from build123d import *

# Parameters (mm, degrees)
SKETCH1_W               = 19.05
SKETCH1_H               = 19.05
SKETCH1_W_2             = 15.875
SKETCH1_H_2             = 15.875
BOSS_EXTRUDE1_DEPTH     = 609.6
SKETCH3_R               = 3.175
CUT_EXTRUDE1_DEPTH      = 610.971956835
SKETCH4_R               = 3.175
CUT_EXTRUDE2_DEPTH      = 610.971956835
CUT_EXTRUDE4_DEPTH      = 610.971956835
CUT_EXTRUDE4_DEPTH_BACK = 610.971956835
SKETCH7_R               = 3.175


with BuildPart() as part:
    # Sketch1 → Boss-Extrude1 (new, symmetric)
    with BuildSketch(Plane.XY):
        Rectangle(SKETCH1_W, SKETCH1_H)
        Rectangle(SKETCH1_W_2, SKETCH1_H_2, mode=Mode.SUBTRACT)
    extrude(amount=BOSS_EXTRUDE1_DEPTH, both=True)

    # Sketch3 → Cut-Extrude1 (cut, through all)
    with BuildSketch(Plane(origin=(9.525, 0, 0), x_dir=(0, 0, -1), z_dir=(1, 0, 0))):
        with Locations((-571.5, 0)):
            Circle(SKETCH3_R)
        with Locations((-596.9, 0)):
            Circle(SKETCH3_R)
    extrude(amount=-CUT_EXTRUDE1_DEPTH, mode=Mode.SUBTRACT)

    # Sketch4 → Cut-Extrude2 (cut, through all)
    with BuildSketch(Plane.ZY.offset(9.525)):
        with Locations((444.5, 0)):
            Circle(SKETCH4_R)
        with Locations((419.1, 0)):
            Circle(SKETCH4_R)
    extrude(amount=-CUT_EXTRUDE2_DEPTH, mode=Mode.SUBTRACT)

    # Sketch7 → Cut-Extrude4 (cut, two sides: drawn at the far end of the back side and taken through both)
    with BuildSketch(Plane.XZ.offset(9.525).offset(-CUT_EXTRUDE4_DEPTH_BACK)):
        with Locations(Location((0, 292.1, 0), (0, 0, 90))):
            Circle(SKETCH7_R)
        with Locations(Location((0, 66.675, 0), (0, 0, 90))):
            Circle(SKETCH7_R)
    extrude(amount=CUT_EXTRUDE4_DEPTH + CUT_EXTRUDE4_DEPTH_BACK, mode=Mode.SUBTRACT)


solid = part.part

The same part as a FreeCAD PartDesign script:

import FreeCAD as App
import Part
import Sketcher
from FreeCAD import Vector
Q = App.Units.Quantity


def add_polygon(sketch, points):
    """Adds a closed chain of lines whose ends are joined by coincident constraints."""
    first, n = sketch.GeometryCount, len(points)
    for a, b in zip(points, points[1:] + points[:1]):
        sketch.addGeometry(Part.LineSegment(App.Vector(*a, 0), App.Vector(*b, 0)), False)
    for i in range(n):
        sketch.addConstraint(Sketcher.Constraint("Coincident", first + i, 2, first + (i + 1) % n, 1))

doc = App.newDocument("Part")
params = doc.addObject("Spreadsheet::Sheet", "Params")
for row, (alias, value) in enumerate([
    ("sketch1_width", "0.75 in"),
    ("sketch1_width2", "0.625 in"),
    ("pad1_length", "48 in"),
    ("sketch2_diameter", "0.25 in"),
    ("sketch3_diameter", "0.25 in"),
    ("sketch4_diameter", "0.25 in"),
], start=1):
    params.set(f"A{row}", alias)
    params.set(f"B{row}", "=" + value)
    params.setAlias(f"B{row}", alias)

body = doc.addObject("PartDesign::Body", "Body")

# Sketch on XY plane
sketch1 = body.newObject("Sketcher::SketchObject", "Sketch")
sketch1.AttachmentSupport = (doc.getObject("XY_Plane"), [""])
sketch1.MapMode = "FlatFace"
add_polygon(sketch1, [(-10, 10), (-10, -10), (10, -10), (10, 10)])  # lines 0-3
add_polygon(sketch1, [(8, -8), (-8, -8), (-8, 8), (8, 8)])  # lines 4-7
sketch1.addConstraint(Sketcher.Constraint("Vertical", 0))
sketch1.addConstraint(Sketcher.Constraint("Horizontal", 1))
sketch1.addConstraint(Sketcher.Constraint("Vertical", 2))
sketch1.addConstraint(Sketcher.Constraint("Horizontal", 3))
sketch1.addConstraint(Sketcher.Constraint("Horizontal", 4))
sketch1.addConstraint(Sketcher.Constraint("Vertical", 5))
sketch1.addConstraint(Sketcher.Constraint("Horizontal", 6))
sketch1.addConstraint(Sketcher.Constraint("Vertical", 7))
sketch1.addConstraint(Sketcher.Constraint("Symmetric", 0, 2, 2, 2, -1, 1))
sketch1.addConstraint(Sketcher.Constraint("Symmetric", 4, 2, 6, 2, -1, 1))
sketch1.addConstraint(Sketcher.Constraint("Equal", 3, 0))
sketch1.addConstraint(Sketcher.Constraint("Equal", 6, 5))
sketch1.addConstraint(Sketcher.Constraint("DistanceX", 1, 1, 1, 2, Q("0.75 in")))
sketch1.addConstraint(Sketcher.Constraint("DistanceX", 4, 2, 4, 1, Q("0.625 in")))
sketch1.setExpression("Constraints[20]", "Params.sketch1_width")
sketch1.setExpression("Constraints[21]", "Params.sketch1_width2")
pad1 = body.newObject("PartDesign::Pad", "Pad")
pad1.Profile = sketch1
pad1.setExpression("Length", "Params.pad1_length")
pad1.Midplane = True

# Sketch on YZ plane
sketch2 = body.newObject("Sketcher::SketchObject", "Sketch001")
sketch2.AttachmentSupport = (doc.getObject("YZ_Plane"), [""])
sketch2.MapMode = "FlatFace"
sketch2.AttachmentOffset = App.Placement(Vector(0, 0, 0.375 * 25.4), App.Rotation())
sketch2.addGeometry(Part.Circle(Vector(0, 571.5, 0), Vector(0, 0, 1), 3.2), False)
sketch2.addGeometry(Part.Circle(Vector(0, 596.9, 0), Vector(0, 0, 1), 3.2), False)
sketch2.addConstraint(Sketcher.Constraint("Equal", 0, 1))
sketch2.addConstraint(Sketcher.Constraint("PointOnObject", 0, 3, -2))
sketch2.addConstraint(Sketcher.Constraint("PointOnObject", 1, 3, -2))
sketch2.addConstraint(Sketcher.Constraint("Diameter", 0, Q("0.25 in")))
sketch2.addConstraint(Sketcher.Constraint("DistanceY", 0, 3, 1, 3, Q("1 in")))
sketch2.addConstraint(Sketcher.Constraint("DistanceY", -1, 1, 0, 3, Q("22.5 in")))
sketch2.setExpression("Constraints[3]", "Params.sketch2_diameter")
pocket1 = body.newObject("PartDesign::Pocket", "Pocket")
pocket1.Profile = sketch2
pocket1.Type = "ThroughAll"

# Sketch on YZ plane
sketch3 = body.newObject("Sketcher::SketchObject", "Sketch002")
sketch3.AttachmentSupport = (doc.getObject("YZ_Plane"), [""])
sketch3.MapMode = "FlatFace"
sketch3.AttachmentOffset = App.Placement(Vector(0, 0, -0.375 * 25.4), App.Rotation())
sketch3.addGeometry(Part.Circle(Vector(0, 444.5, 0), Vector(0, 0, 1), 3.2), False)
sketch3.addGeometry(Part.Circle(Vector(0, 419.1, 0), Vector(0, 0, 1), 3.2), False)
sketch3.addConstraint(Sketcher.Constraint("Equal", 0, 1))
sketch3.addConstraint(Sketcher.Constraint("PointOnObject", 0, 3, -2))
sketch3.addConstraint(Sketcher.Constraint("PointOnObject", 1, 3, -2))
sketch3.addConstraint(Sketcher.Constraint("Diameter", 0, Q("0.25 in")))
sketch3.addConstraint(Sketcher.Constraint("DistanceY", 1, 3, 0, 3, Q("1 in")))
sketch3.addConstraint(Sketcher.Constraint("DistanceY", -1, 1, 0, 3, Q("17.5 in")))
sketch3.setExpression("Constraints[3]", "Params.sketch3_diameter")
pocket2 = body.newObject("PartDesign::Pocket", "Pocket001")
pocket2.Profile = sketch3
pocket2.Type = "ThroughAll"
pocket2.Reversed = True

# Sketch on XZ plane
sketch4 = body.newObject("Sketcher::SketchObject", "Sketch003")
sketch4.AttachmentSupport = (doc.getObject("XZ_Plane"), [""])
sketch4.MapMode = "FlatFace"
sketch4.AttachmentOffset = App.Placement(Vector(0, 0, 0.375 * 25.4), App.Rotation())
sketch4.addGeometry(Part.Circle(Vector(0, 292.1, 0), Vector(0, 0, 1), 3.2), False)
sketch4.addGeometry(Part.Circle(Vector(0, 66.7, 0), Vector(0, 0, 1), 3.2), False)
sketch4.addConstraint(Sketcher.Constraint("Equal", 0, 1))
sketch4.addConstraint(Sketcher.Constraint("PointOnObject", 0, 3, -2))
sketch4.addConstraint(Sketcher.Constraint("PointOnObject", 1, 3, -2))
sketch4.addConstraint(Sketcher.Constraint("Diameter", 0, Q("0.25 in")))
sketch4.addConstraint(Sketcher.Constraint("DistanceY", -1, 1, 0, 3, Q("11.5 in")))
sketch4.addConstraint(Sketcher.Constraint("DistanceY", -1, 1, 1, 3, Q("2.625 in")))
sketch4.setExpression("Constraints[3]", "Params.sketch4_diameter")
pocket3 = body.newObject("PartDesign::Pocket", "Pocket002")
pocket3.Profile = sketch4
pocket3.Type = "ThroughAll"
pocket3.Midplane = True

doc.recompute()
